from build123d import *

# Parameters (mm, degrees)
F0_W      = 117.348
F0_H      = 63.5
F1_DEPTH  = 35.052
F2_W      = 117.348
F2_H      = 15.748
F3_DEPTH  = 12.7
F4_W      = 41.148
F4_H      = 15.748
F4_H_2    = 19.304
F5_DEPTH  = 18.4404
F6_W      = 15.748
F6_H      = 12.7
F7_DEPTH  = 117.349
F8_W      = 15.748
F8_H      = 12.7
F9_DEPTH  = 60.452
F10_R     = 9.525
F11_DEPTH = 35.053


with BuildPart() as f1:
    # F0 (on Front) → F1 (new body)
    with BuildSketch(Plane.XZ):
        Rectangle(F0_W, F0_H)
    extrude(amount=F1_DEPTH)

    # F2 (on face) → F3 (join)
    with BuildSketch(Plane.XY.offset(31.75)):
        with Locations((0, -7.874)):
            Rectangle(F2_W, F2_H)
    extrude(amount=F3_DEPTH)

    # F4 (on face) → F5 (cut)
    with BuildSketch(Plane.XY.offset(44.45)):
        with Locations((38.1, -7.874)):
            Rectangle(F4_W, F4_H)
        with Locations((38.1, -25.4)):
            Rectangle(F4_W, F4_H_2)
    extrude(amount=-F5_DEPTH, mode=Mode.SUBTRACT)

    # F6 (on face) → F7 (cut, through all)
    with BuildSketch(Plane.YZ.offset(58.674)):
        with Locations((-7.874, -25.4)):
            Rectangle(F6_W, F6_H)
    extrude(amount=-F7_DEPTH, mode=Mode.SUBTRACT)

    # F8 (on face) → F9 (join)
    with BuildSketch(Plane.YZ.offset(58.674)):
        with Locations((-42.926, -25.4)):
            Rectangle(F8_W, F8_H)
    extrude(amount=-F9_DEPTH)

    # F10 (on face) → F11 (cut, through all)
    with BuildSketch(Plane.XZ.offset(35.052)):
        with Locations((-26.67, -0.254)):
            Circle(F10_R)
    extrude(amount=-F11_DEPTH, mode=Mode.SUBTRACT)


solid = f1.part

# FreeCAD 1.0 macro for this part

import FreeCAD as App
import Part
import Sketcher
from FreeCAD import Vector
Q = App.Units.Quantity

doc = App.newDocument("Part")
params = doc.addObject("Spreadsheet::Sheet", "Params")
for row, (alias, value) in enumerate([
    ("sketch1_height", "2.5 in"),
    ("sketch1_width", "4.62 in"),
    ("pad1_length", "1.38 in"),
    ("sketch2_width", "4.62 in"),
    ("sketch2_height", "0.62 in"),
    ("pad2_length", "0.5 in"),
    ("sketch3_width", "1.62 in"),
    ("sketch3_height", "1.38 in"),
    ("pocket1_length", "0.726 in"),
    ("sketch4_height", "0.5 in"),
    ("sketch4_width", "0.62 in"),
    ("sketch5_height", "0.5 in"),
    ("sketch5_width", "0.62 in"),
    ("pad3_length", "2.38 in"),
    ("sketch6_diameter", "0.75 in"),
], start=1):
    params.set(f"A{row}", alias)
    params.set(f"B{row}", "=" + value)
    params.setAlias(f"B{row}", alias)

body = doc.addObject("PartDesign::Body", "Body")

# Sketch on XZ plane
sketch1 = body.newObject("Sketcher::SketchObject", "Sketch")
sketch1.AttachmentSupport = (doc.getObject("XZ_Plane"), [""])
sketch1.MapMode = "FlatFace"
sketch1.addGeometry(Part.LineSegment(Vector(-59, 32, 0), Vector(-59, -32, 0)), False)
sketch1.addGeometry(Part.LineSegment(Vector(-59, -32, 0), Vector(59, -32, 0)), False)
sketch1.addGeometry(Part.LineSegment(Vector(59, -32, 0), Vector(59, 32, 0)), False)
sketch1.addGeometry(Part.LineSegment(Vector(59, 32, 0), Vector(-59, 32, 0)), False)
sketch1.addConstraint(Sketcher.Constraint("Coincident", 0, 2, 1, 1))
sketch1.addConstraint(Sketcher.Constraint("Coincident", 1, 2, 2, 1))
sketch1.addConstraint(Sketcher.Constraint("Coincident", 2, 2, 3, 1))
sketch1.addConstraint(Sketcher.Constraint("Coincident", 3, 2, 0, 1))
sketch1.addConstraint(Sketcher.Constraint("Vertical", 0))
sketch1.addConstraint(Sketcher.Constraint("Horizontal", 1))
sketch1.addConstraint(Sketcher.Constraint("Vertical", 2))
sketch1.addConstraint(Sketcher.Constraint("Horizontal", 3))
sketch1.addConstraint(Sketcher.Constraint("Symmetric", 0, 2, 2, 2, -1, 1))
sketch1.addConstraint(Sketcher.Constraint("DistanceY", 0, 2, 0, 1, Q("2.5 in")))
sketch1.addConstraint(Sketcher.Constraint("DistanceX", 1, 1, 1, 2, Q("4.62 in")))
sketch1.setExpression("Constraints[9]", "Params.sketch1_height")
sketch1.setExpression("Constraints[10]", "Params.sketch1_width")
pad1 = body.newObject("PartDesign::Pad", "Pad")
pad1.Profile = sketch1
pad1.setExpression("Length", "Params.pad1_length")

# Sketch on XY plane
sketch2 = body.newObject("Sketcher::SketchObject", "Sketch001")
sketch2.AttachmentSupport = (doc.getObject("XY_Plane"), [""])
sketch2.MapMode = "FlatFace"
sketch2.AttachmentOffset = App.Placement(Vector(0, 0, 1.25 * 25.4), App.Rotation())
sketch2.addGeometry(Part.LineSegment(Vector(-59, 0, 0), Vector(-59, -16, 0)), False)
sketch2.addGeometry(Part.LineSegment(Vector(-59, -16, 0), Vector(59, -16, 0)), False)
sketch2.addGeometry(Part.LineSegment(Vector(59, -16, 0), Vector(59, 0, 0)), False)
sketch2.addGeometry(Part.LineSegment(Vector(59, 0, 0), Vector(-59, 0, 0)), False)
sketch2.addConstraint(Sketcher.Constraint("Coincident", 0, 2, 1, 1))
sketch2.addConstraint(Sketcher.Constraint("Coincident", 1, 2, 2, 1))
sketch2.addConstraint(Sketcher.Constraint("Coincident", 2, 2, 3, 1))
sketch2.addConstraint(Sketcher.Constraint("Coincident", 3, 2, 0, 1))
sketch2.addConstraint(Sketcher.Constraint("Vertical", 0))
sketch2.addConstraint(Sketcher.Constraint("Horizontal", 1))
sketch2.addConstraint(Sketcher.Constraint("Vertical", 2))
sketch2.addConstraint(Sketcher.Constraint("Horizontal", 3))
sketch2.addConstraint(Sketcher.Constraint("Symmetric", 2, 2, 3, 2, -1, 1))
sketch2.addConstraint(Sketcher.Constraint("DistanceX", 1, 1, 1, 2, Q("4.62 in")))
sketch2.addConstraint(Sketcher.Constraint("DistanceY", 0, 2, 0, 1, Q("0.62 in")))
sketch2.setExpression("Constraints[9]", "Params.sketch2_width")
sketch2.setExpression("Constraints[10]", "Params.sketch2_height")
pad2 = body.newObject("PartDesign::Pad", "Pad001")
pad2.Profile = sketch2
pad2.setExpression("Length", "Params.pad2_length")

# Sketch on XY plane
sketch3 = body.newObject("Sketcher::SketchObject", "Sketch002")
sketch3.AttachmentSupport = (doc.getObject("XY_Plane"), [""])
sketch3.MapMode = "FlatFace"
sketch3.AttachmentOffset = App.Placement(Vector(0, 0, 1.75 * 25.4), App.Rotation())
sketch3.addGeometry(Part.LineSegment(Vector(18, 0, 0), Vector(18, -35, 0)), False)
sketch3.addGeometry(Part.LineSegment(Vector(18, -35, 0), Vector(59, -35, 0)), False)
sketch3.addGeometry(Part.LineSegment(Vector(59, -35, 0), Vector(59, 0, 0)), False)
sketch3.addGeometry(Part.LineSegment(Vector(59, 0, 0), Vector(18, 0, 0)), False)
sketch3.addConstraint(Sketcher.Constraint("Coincident", 0, 2, 1, 1))
sketch3.addConstraint(Sketcher.Constraint("Coincident", 1, 2, 2, 1))
sketch3.addConstraint(Sketcher.Constraint("Coincident", 2, 2, 3, 1))
sketch3.addConstraint(Sketcher.Constraint("Coincident", 3, 2, 0, 1))
sketch3.addConstraint(Sketcher.Constraint("Vertical", 0))
sketch3.addConstraint(Sketcher.Constraint("Horizontal", 1))
sketch3.addConstraint(Sketcher.Constraint("Vertical", 2))
sketch3.addConstraint(Sketcher.Constraint("Horizontal", 3))
sketch3.addConstraint(Sketcher.Constraint("PointOnObject", 2, 2, -1))
sketch3.addConstraint(Sketcher.Constraint("DistanceX", 1, 1, 1, 2, Q("1.62 in")))
sketch3.addConstraint(Sketcher.Constraint("DistanceY", 0, 2, 0, 1, Q("1.38 in")))
sketch3.addConstraint(Sketcher.Constraint("DistanceX", -1, 1, 0, 2, Q("0.69 in")))
sketch3.setExpression("Constraints[9]", "Params.sketch3_width")
sketch3.setExpression("Constraints[10]", "Params.sketch3_height")
pocket1 = body.newObject("PartDesign::Pocket", "Pocket")
pocket1.Profile = sketch3
pocket1.setExpression("Length", "Params.pocket1_length")

# Sketch on YZ plane
sketch4 = body.newObject("Sketcher::SketchObject", "Sketch003")
sketch4.AttachmentSupport = (doc.getObject("YZ_Plane"), [""])
sketch4.MapMode = "FlatFace"
sketch4.AttachmentOffset = App.Placement(Vector(0, 0, 2.31 * 25.4), App.Rotation())
sketch4.addGeometry(Part.LineSegment(Vector(-16, -19, 0), Vector(-16, -32, 0)), False)
sketch4.addGeometry(Part.LineSegment(Vector(-16, -32, 0), Vector(0, -32, 0)), False)
sketch4.addGeometry(Part.LineSegment(Vector(0, -32, 0), Vector(0, -19, 0)), False)
sketch4.addGeometry(Part.LineSegment(Vector(0, -19, 0), Vector(-16, -19, 0)), False)
sketch4.addConstraint(Sketcher.Constraint("Coincident", 0, 2, 1, 1))
sketch4.addConstraint(Sketcher.Constraint("Coincident", 1, 2, 2, 1))
sketch4.addConstraint(Sketcher.Constraint("Coincident", 2, 2, 3, 1))
sketch4.addConstraint(Sketcher.Constraint("Coincident", 3, 2, 0, 1))
sketch4.addConstraint(Sketcher.Constraint("Vertical", 0))
sketch4.addConstraint(Sketcher.Constraint("Horizontal", 1))
sketch4.addConstraint(Sketcher.Constraint("Vertical", 2))
sketch4.addConstraint(Sketcher.Constraint("Horizontal", 3))
sketch4.addConstraint(Sketcher.Constraint("PointOnObject", 1, 2, -2))
sketch4.addConstraint(Sketcher.Constraint("DistanceY", 0, 2, 0, 1, Q("0.5 in")))
sketch4.addConstraint(Sketcher.Constraint("DistanceX", 1, 1, 1, 2, Q("0.62 in")))
sketch4.addConstraint(Sketcher.Constraint("DistanceY", 0, 2, -1, 1, Q("1.25 in")))
sketch4.setExpression("Constraints[9]", "Params.sketch4_height")
sketch4.setExpression("Constraints[10]", "Params.sketch4_width")
pocket2 = body.newObject("PartDesign::Pocket", "Pocket001")
pocket2.Profile = sketch4
pocket2.Type = "ThroughAll"

# Sketch on YZ plane
sketch5 = body.newObject("Sketcher::SketchObject", "Sketch004")
sketch5.AttachmentSupport = (doc.getObject("YZ_Plane"), [""])
sketch5.MapMode = "FlatFace"
sketch5.AttachmentOffset = App.Placement(Vector(0, 0, 2.31 * 25.4), App.Rotation())
sketch5.addGeometry(Part.LineSegment(Vector(-51, -19, 0), Vector(-51, -32, 0)), False)
sketch5.addGeometry(Part.LineSegment(Vector(-51, -32, 0), Vector(-35, -32, 0)), False)
sketch5.addGeometry(Part.LineSegment(Vector(-35, -32, 0), Vector(-35, -19, 0)), False)
sketch5.addGeometry(Part.LineSegment(Vector(-35, -19, 0), Vector(-51, -19, 0)), False)
sketch5.addConstraint(Sketcher.Constraint("Coincident", 0, 2, 1, 1))
sketch5.addConstraint(Sketcher.Constraint("Coincident", 1, 2, 2, 1))
sketch5.addConstraint(Sketcher.Constraint("Coincident", 2, 2, 3, 1))
sketch5.addConstraint(Sketcher.Constraint("Coincident", 3, 2, 0, 1))
sketch5.addConstraint(Sketcher.Constraint("Vertical", 0))
sketch5.addConstraint(Sketcher.Constraint("Horizontal", 1))
sketch5.addConstraint(Sketcher.Constraint("Vertical", 2))
sketch5.addConstraint(Sketcher.Constraint("Horizontal", 3))
sketch5.addConstraint(Sketcher.Constraint("DistanceY", 0, 2, 0, 1, Q("0.5 in")))
sketch5.addConstraint(Sketcher.Constraint("DistanceX", 0, 2, -1, 1, Q("2 in")))
sketch5.addConstraint(Sketcher.Constraint("DistanceX", 1, 1, 1, 2, Q("0.62 in")))
sketch5.addConstraint(Sketcher.Constraint("DistanceY", 0, 2, -1, 1, Q("1.25 in")))
sketch5.setExpression("Constraints[8]", "Params.sketch5_height")
sketch5.setExpression("Constraints[10]", "Params.sketch5_width")
pad3 = body.newObject("PartDesign::Pad", "Pad002")
pad3.Profile = sketch5
pad3.setExpression("Length", "Params.pad3_length")
pad3.Reversed = True

# Sketch on XZ plane
sketch6 = body.newObject("Sketcher::SketchObject", "Sketch005")
sketch6.AttachmentSupport = (doc.getObject("XZ_Plane"), [""])
sketch6.MapMode = "FlatFace"
sketch6.AttachmentOffset = App.Placement(Vector(0, 0, 1.38 * 25.4), App.Rotation())
sketch6.addGeometry(Part.Circle(Vector(-27, 0, 0), Vector(0, 0, 1), 10), False)
sketch6.addConstraint(Sketcher.Constraint("Diameter", 0, Q("0.75 in")))
sketch6.addConstraint(Sketcher.Constraint("DistanceX", 0, 3, -1, 1, Q("1.05 in")))
sketch6.addConstraint(Sketcher.Constraint("DistanceY", 0, 3, -1, 1, Q("0.01 in")))
sketch6.setExpression("Constraints[0]", "Params.sketch6_diameter")
pocket3 = body.newObject("PartDesign::Pocket", "Pocket002")
pocket3.Profile = sketch6
pocket3.Type = "ThroughAll"

doc.recompute()
